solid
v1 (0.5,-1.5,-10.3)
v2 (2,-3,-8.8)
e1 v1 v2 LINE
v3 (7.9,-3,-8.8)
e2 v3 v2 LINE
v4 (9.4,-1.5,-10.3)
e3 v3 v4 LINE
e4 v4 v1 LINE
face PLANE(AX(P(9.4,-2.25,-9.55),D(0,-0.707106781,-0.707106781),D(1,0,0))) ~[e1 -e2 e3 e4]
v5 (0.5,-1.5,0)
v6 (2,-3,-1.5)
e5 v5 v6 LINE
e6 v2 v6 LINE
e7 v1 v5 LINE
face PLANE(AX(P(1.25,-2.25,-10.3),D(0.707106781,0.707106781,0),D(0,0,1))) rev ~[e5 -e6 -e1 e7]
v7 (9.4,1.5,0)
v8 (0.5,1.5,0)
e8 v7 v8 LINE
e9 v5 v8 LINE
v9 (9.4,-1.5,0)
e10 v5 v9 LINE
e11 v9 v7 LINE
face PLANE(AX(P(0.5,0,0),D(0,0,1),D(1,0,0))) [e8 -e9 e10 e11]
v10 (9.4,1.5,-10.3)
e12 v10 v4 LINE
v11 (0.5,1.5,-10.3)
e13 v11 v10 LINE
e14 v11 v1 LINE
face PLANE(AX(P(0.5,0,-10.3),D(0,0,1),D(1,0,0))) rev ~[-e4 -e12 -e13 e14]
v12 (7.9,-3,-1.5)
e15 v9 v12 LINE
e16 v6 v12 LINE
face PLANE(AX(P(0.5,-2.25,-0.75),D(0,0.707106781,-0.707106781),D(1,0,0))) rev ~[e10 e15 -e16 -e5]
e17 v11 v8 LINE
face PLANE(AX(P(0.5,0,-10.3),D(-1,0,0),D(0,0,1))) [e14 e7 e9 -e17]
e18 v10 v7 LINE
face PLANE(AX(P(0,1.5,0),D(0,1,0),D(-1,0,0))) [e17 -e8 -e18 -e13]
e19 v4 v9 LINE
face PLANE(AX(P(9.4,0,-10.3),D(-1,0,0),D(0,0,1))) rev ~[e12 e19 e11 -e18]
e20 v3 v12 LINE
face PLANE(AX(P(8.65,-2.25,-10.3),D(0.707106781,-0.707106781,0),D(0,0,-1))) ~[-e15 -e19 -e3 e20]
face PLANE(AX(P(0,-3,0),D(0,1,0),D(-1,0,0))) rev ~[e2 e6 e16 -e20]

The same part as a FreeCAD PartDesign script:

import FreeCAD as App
import Part
import Sketcher
from FreeCAD import Vector


def edges_at(feature, points):
    """Names of the edges that pass closest to the given points."""
    edges = feature.Shape.Edges
    near = lambda p: min(range(len(edges)), key=lambda i: edges[i].distToShape(Part.Vertex(*p))[0])
    return sorted({f"Edge{near(p) + 1}" for p in points})


def add_polygon(sketch, points):
    """Adds a closed chain of lines whose ends are joined by coincident constraints."""
    first, n = sketch.GeometryCount, len(points)
    for a, b in zip(points, points[1:] + points[:1]):
        sketch.addGeometry(Part.LineSegment(App.Vector(*a, 0), App.Vector(*b, 0)), False)
    for i in range(n):
        sketch.addConstraint(Sketcher.Constraint("Coincident", first + i, 2, first + (i + 1) % n, 1))

doc = App.newDocument("Part")
params = doc.addObject("Spreadsheet::Sheet", "Params")
for row, (alias, value) in enumerate([
    ("sketch1_height", "10.3 mm"),
    ("sketch1_width", "8.9 mm"),
    ("pad1_length", "3 mm"),
    ("chamfer_size", "1.5 mm"),
    ("sketch2_height", "10.3 mm"),
    ("sketch2_width", "8.9 mm"),
    ("pad2_length", "1.5 mm"),
], start=1):
    params.set(f"A{row}", alias)
    params.set(f"B{row}", "=" + value)
    params.setAlias(f"B{row}", alias)

body = doc.addObject("PartDesign::Body", "Body")

# Sketch on XZ plane
sketch1 = body.newObject("Sketcher::SketchObject", "Sketch")
sketch1.AttachmentSupport = (doc.getObject("XZ_Plane"), [""])
sketch1.MapMode = "FlatFace"
add_polygon(sketch1, [(0, -10), (0, 0), (9, 0), (9, -10)])  # lines 0-3
sketch1.addConstraint([
    Sketcher.Constraint("Vertical", 0),
    Sketcher.Constraint("Horizontal", 1),
    Sketcher.Constraint("Vertical", 2),
    Sketcher.Constraint("Horizontal", 3),
    Sketcher.Constraint("PointOnObject", 0, 2, -1),
    Sketcher.Constraint("DistanceY", 0, 1, 0, 2, 10.3),
    Sketcher.Constraint("DistanceX", -1, 1, 0, 2, 0.5),
    Sketcher.Constraint("DistanceX", 1, 1, 1, 2, 8.9),
])
sketch1.setExpression("Constraints[9]", "Params.sketch1_height")
sketch1.setExpression("Constraints[11]", "Params.sketch1_width")
pad1 = body.newObject("PartDesign::Pad", "Pad")
pad1.Profile = sketch1
pad1.setExpression("Length", "Params.pad1_length")
doc.recompute()

chamfer = body.newObject("PartDesign::Chamfer", "Chamfer")
chamfer.Base = (pad1, edges_at(pad1, [
    (4.95, -3, 0),
    (9.4, -3, -5.15),
    (0.5, -3, -5.15),
    (4.95, -3, -10.3),
]))
chamfer.setExpression("Size", "Params.chamfer_size")

# Sketch on XZ plane
sketch2 = body.newObject("Sketcher::SketchObject", "Sketch001")
sketch2.AttachmentSupport = (doc.getObject("XZ_Plane"), [""])
sketch2.MapMode = "FlatFace"
add_polygon(sketch2, [(0, -10), (0, 0), (9, 0), (9, -10)])  # lines 0-3
sketch2.addConstraint([
    Sketcher.Constraint("Vertical", 0),
    Sketcher.Constraint("Horizontal", 1),
    Sketcher.Constraint("Vertical", 2),
    Sketcher.Constraint("Horizontal", 3),
    Sketcher.Constraint("PointOnObject", 0, 2, -1),
    Sketcher.Constraint("DistanceY", 0, 1, 0, 2, 10.3),
    Sketcher.Constraint("DistanceX", -1, 1, 0, 2, 0.5),
    Sketcher.Constraint("DistanceX", 1, 1, 1, 2, 8.9),
])
sketch2.setExpression("Constraints[9]", "Params.sketch2_height")
sketch2.setExpression("Constraints[11]", "Params.sketch2_width")
pad2 = body.newObject("PartDesign::Pad", "Pad001")
pad2.Profile = sketch2
pad2.setExpression("Length", "Params.pad2_length")
pad2.Reversed = True

doc.recompute()
